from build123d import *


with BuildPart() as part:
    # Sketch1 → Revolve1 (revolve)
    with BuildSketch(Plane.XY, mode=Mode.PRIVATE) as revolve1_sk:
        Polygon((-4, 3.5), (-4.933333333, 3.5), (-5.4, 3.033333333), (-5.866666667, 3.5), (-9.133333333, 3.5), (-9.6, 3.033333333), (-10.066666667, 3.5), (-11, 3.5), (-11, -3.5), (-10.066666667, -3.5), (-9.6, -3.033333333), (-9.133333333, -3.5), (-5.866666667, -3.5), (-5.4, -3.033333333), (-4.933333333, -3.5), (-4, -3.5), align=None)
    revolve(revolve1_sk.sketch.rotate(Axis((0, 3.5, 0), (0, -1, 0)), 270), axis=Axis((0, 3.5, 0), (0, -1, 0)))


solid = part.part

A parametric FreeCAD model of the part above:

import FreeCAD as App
import Part
import Sketcher
from FreeCAD import Vector

doc = App.newDocument("Part")
body = doc.addObject("PartDesign::Body", "Body")

# Sketch on XY plane
sketch1 = body.newObject("Sketcher::SketchObject", "Sketch")
sketch1.AttachmentSupport = (doc.getObject("XY_Plane"), [""])
sketch1.MapMode = "FlatFace"
sketch1.addGeometry([
    Part.LineSegment(Vector(-4, 3.5, 0), Vector(-4.9, 3.5, 0)),  # 0
    Part.LineSegment(Vector(-4.9, 3.5, 0), Vector(-5.4, 3, 0)),  # 1
    Part.LineSegment(Vector(-5.4, 3, 0), Vector(-5.9, 3.5, 0)),  # 2
    Part.LineSegment(Vector(-5.9, 3.5, 0), Vector(-9.1, 3.5, 0)),  # 3
    Part.LineSegment(Vector(-9.1, 3.5, 0), Vector(-9.6, 3, 0)),  # 4
    Part.LineSegment(Vector(-9.6, 3, 0), Vector(-10.1, 3.5, 0)),  # 5
    Part.LineSegment(Vector(-10.1, 3.5, 0), Vector(-11, 3.5, 0)),  # 6
    Part.LineSegment(Vector(-11, 3.5, 0), Vector(-11, -3.5, 0)),  # 7
    Part.LineSegment(Vector(-11, -3.5, 0), Vector(-10.1, -3.5, 0)),  # 8
    Part.LineSegment(Vector(-10.1, -3.5, 0), Vector(-9.6, -3, 0)),  # 9
    Part.LineSegment(Vector(-9.6, -3, 0), Vector(-9.1, -3.5, 0)),  # 10
    Part.LineSegment(Vector(-9.1, -3.5, 0), Vector(-5.9, -3.5, 0)),  # 11
    Part.LineSegment(Vector(-5.9, -3.5, 0), Vector(-5.4, -3, 0)),  # 12
    Part.LineSegment(Vector(-5.4, -3, 0), Vector(-4.9, -3.5, 0)),  # 13
    Part.LineSegment(Vector(-4.9, -3.5, 0), Vector(-4, -3.5, 0)),  # 14
    Part.LineSegment(Vector(-4, -3.5, 0), Vector(-4, 3.5, 0)),  # 15
], False)
sketch1.addConstraint([
    Sketcher.Constraint("Coincident", 0, 2, 1, 1),
    Sketcher.Constraint("Coincident", 1, 2, 2, 1),
    Sketcher.Constraint("Coincident", 2, 2, 3, 1),
    Sketcher.Constraint("Coincident", 3, 2, 4, 1),
    Sketcher.Constraint("Coincident", 4, 2, 5, 1),
    Sketcher.Constraint("Coincident", 5, 2, 6, 1),
    Sketcher.Constraint("Coincident", 6, 2, 7, 1),
    Sketcher.Constraint("Coincident", 7, 2, 8, 1),
    Sketcher.Constraint("Coincident", 8, 2, 9, 1),
    Sketcher.Constraint("Coincident", 9, 2, 10, 1),
    Sketcher.Constraint("Coincident", 10, 2, 11, 1),
    Sketcher.Constraint("Coincident", 11, 2, 12, 1),
    Sketcher.Constraint("Coincident", 12, 2, 13, 1),
    Sketcher.Constraint("Coincident", 13, 2, 14, 1),
    Sketcher.Constraint("Coincident", 14, 2, 15, 1),
    Sketcher.Constraint("Coincident", 15, 2, 0, 1),
    Sketcher.Constraint("Horizontal", 0),
    Sketcher.Constraint("Horizontal", 3),
    Sketcher.Constraint("Horizontal", 6),
    Sketcher.Constraint("Vertical", 7),
    Sketcher.Constraint("Horizontal", 8),
    Sketcher.Constraint("Horizontal", 11),
    Sketcher.Constraint("Horizontal", 14),
    Sketcher.Constraint("Vertical", 15),
    Sketcher.Constraint("Symmetric", 5, 2, 8, 2, -1),
    Sketcher.Constraint("Symmetric", 4, 2, 9, 2, -1),
    Sketcher.Constraint("Symmetric", 3, 2, 10, 2, -1),
    Sketcher.Constraint("Symmetric", 1, 2, 12, 2, -1),
    Sketcher.Constraint("Symmetric", 0, 2, 13, 2, -1),
    Sketcher.Constraint("Perpendicular", 1, 2),
    Sketcher.Constraint("Perpendicular", 2, 4),
    Sketcher.Constraint("Perpendicular", 4, 5),
    Sketcher.Constraint("Perpendicular", 5, 9),
    Sketcher.Constraint("Perpendicular", 10, 12),
    Sketcher.Constraint("Horizontal", 0, 2, 2, 2),
    Sketcher.Constraint("Horizontal", 1, 2, 4, 2),
    Sketcher.Constraint("Horizontal", 3, 2, 5, 2),
    Sketcher.Constraint("Equal", 0, 6),
    Sketcher.Constraint("DistanceY", 7, 2, 7, 1, 7.0),
    Sketcher.Constraint("DistanceX", 6, 2, -1, 1, 11.0),
    Sketcher.Constraint("DistanceX", 14, 2, -1, 1, 4.0),
    Sketcher.Constraint("DistanceX", 1, 2, -1, 1, 5.4),
    Sketcher.Constraint("DistanceX", 0, 2, 0, 1, 0.933333),
])
revolution = body.newObject("PartDesign::Revolution", "Revolution")
revolution.Profile = sketch1
revolution.ReferenceAxis = (sketch1, ["V_Axis"])
revolution.Angle = 360

doc.recompute()
